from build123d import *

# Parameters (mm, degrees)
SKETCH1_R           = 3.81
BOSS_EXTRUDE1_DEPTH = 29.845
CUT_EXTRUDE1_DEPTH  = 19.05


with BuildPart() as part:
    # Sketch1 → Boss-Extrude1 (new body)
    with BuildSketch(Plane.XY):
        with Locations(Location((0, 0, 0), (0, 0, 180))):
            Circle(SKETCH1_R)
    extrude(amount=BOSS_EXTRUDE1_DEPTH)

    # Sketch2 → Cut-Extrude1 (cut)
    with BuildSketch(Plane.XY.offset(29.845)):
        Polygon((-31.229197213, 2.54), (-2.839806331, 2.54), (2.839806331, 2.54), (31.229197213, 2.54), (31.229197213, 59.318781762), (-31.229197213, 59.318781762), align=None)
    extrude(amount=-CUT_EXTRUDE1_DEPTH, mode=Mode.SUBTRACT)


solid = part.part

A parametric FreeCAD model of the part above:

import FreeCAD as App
import Part
import Sketcher
Q = App.Units.Quantity

doc = App.newDocument("Part")
params = doc.addObject("Spreadsheet::Sheet", "Params")
for row, (alias, value) in enumerate([
    ("sketch1_diameter", "0.3 in"),
    ("pad1_length", "1.175 in"),
    ("pocket1_length", "0.75 in"),
], start=1):
    params.set(f"A{row}", alias)
    params.set(f"B{row}", "=" + value)
    params.setAlias(f"B{row}", alias)

body = doc.addObject("PartDesign::Body", "Body")

sketch1 = body.newObject("Sketcher::SketchObject", "Sketch")
sketch1.AttachmentSupport = (doc.getObject("XY_Plane"), [""])
sketch1.MapMode = "FlatFace"
sketch1.addGeometry(Part.Circle(App.Vector(0, 0, 0), App.Vector(0, 0, 1), 3.8), False)
sketch1.addConstraint(Sketcher.Constraint("Coincident", 0, 3, -1, 1))
sketch1.addConstraint(Sketcher.Constraint("Diameter", 0, Q("0.3 in")))
sketch1.setExpression("Constraints[1]", "Params.sketch1_diameter")
pad1 = body.newObject("PartDesign::Pad", "Pad")
pad1.Profile = sketch1
pad1.setExpression("Length", "Params.pad1_length")

sketch2 = body.newObject("Sketcher::SketchObject", "Sketch001")
sketch2.AttachmentSupport = (doc.getObject("XY_Plane"), [""])
sketch2.MapMode = "FlatFace"
sketch2.AttachmentOffset = App.Placement(App.Vector(0, 0, 1.175 * 25.4), App.Rotation())
sketch2.addGeometry(Part.LineSegment(App.Vector(-31, 3, 0), App.Vector(31, 3, 0)), False)
sketch2.addGeometry(Part.LineSegment(App.Vector(31, 3, 0), App.Vector(31, 59, 0)), False)
sketch2.addGeometry(Part.LineSegment(App.Vector(31, 59, 0), App.Vector(-31, 59, 0)), False)
sketch2.addGeometry(Part.LineSegment(App.Vector(-31, 59, 0), App.Vector(-31, 3, 0)), False)
sketch2.addConstraint(Sketcher.Constraint("Coincident", 0, 2, 1, 1))
sketch2.addConstraint(Sketcher.Constraint("Coincident", 1, 2, 2, 1))
sketch2.addConstraint(Sketcher.Constraint("Coincident", 2, 2, 3, 1))
sketch2.addConstraint(Sketcher.Constraint("Coincident", 3, 2, 0, 1))
sketch2.addConstraint(Sketcher.Constraint("Horizontal", 0))
sketch2.addConstraint(Sketcher.Constraint("Vertical", 1))
sketch2.addConstraint(Sketcher.Constraint("Horizontal", 2))
sketch2.addConstraint(Sketcher.Constraint("Vertical", 3))
sketch2.addConstraint(Sketcher.Constraint("DistanceY", -1, 1, 0, 2, Q("0.1 in")))
sketch2.addConstraint(Sketcher.Constraint("DistanceY", 1, 1, 1, 2, Q("56.778782 mm")))
sketch2.addConstraint(Sketcher.Constraint("DistanceX", 0, 1, 0, 2, Q("62.458394 mm")))
sketch2.addConstraint(Sketcher.Constraint("DistanceX", -1, 1, 0, 2, Q("31.229197 mm")))
pocket1 = body.newObject("PartDesign::Pocket", "Pocket")
pocket1.Profile = sketch2
pocket1.setExpression("Length", "Params.pocket1_length")

doc.recompute()
